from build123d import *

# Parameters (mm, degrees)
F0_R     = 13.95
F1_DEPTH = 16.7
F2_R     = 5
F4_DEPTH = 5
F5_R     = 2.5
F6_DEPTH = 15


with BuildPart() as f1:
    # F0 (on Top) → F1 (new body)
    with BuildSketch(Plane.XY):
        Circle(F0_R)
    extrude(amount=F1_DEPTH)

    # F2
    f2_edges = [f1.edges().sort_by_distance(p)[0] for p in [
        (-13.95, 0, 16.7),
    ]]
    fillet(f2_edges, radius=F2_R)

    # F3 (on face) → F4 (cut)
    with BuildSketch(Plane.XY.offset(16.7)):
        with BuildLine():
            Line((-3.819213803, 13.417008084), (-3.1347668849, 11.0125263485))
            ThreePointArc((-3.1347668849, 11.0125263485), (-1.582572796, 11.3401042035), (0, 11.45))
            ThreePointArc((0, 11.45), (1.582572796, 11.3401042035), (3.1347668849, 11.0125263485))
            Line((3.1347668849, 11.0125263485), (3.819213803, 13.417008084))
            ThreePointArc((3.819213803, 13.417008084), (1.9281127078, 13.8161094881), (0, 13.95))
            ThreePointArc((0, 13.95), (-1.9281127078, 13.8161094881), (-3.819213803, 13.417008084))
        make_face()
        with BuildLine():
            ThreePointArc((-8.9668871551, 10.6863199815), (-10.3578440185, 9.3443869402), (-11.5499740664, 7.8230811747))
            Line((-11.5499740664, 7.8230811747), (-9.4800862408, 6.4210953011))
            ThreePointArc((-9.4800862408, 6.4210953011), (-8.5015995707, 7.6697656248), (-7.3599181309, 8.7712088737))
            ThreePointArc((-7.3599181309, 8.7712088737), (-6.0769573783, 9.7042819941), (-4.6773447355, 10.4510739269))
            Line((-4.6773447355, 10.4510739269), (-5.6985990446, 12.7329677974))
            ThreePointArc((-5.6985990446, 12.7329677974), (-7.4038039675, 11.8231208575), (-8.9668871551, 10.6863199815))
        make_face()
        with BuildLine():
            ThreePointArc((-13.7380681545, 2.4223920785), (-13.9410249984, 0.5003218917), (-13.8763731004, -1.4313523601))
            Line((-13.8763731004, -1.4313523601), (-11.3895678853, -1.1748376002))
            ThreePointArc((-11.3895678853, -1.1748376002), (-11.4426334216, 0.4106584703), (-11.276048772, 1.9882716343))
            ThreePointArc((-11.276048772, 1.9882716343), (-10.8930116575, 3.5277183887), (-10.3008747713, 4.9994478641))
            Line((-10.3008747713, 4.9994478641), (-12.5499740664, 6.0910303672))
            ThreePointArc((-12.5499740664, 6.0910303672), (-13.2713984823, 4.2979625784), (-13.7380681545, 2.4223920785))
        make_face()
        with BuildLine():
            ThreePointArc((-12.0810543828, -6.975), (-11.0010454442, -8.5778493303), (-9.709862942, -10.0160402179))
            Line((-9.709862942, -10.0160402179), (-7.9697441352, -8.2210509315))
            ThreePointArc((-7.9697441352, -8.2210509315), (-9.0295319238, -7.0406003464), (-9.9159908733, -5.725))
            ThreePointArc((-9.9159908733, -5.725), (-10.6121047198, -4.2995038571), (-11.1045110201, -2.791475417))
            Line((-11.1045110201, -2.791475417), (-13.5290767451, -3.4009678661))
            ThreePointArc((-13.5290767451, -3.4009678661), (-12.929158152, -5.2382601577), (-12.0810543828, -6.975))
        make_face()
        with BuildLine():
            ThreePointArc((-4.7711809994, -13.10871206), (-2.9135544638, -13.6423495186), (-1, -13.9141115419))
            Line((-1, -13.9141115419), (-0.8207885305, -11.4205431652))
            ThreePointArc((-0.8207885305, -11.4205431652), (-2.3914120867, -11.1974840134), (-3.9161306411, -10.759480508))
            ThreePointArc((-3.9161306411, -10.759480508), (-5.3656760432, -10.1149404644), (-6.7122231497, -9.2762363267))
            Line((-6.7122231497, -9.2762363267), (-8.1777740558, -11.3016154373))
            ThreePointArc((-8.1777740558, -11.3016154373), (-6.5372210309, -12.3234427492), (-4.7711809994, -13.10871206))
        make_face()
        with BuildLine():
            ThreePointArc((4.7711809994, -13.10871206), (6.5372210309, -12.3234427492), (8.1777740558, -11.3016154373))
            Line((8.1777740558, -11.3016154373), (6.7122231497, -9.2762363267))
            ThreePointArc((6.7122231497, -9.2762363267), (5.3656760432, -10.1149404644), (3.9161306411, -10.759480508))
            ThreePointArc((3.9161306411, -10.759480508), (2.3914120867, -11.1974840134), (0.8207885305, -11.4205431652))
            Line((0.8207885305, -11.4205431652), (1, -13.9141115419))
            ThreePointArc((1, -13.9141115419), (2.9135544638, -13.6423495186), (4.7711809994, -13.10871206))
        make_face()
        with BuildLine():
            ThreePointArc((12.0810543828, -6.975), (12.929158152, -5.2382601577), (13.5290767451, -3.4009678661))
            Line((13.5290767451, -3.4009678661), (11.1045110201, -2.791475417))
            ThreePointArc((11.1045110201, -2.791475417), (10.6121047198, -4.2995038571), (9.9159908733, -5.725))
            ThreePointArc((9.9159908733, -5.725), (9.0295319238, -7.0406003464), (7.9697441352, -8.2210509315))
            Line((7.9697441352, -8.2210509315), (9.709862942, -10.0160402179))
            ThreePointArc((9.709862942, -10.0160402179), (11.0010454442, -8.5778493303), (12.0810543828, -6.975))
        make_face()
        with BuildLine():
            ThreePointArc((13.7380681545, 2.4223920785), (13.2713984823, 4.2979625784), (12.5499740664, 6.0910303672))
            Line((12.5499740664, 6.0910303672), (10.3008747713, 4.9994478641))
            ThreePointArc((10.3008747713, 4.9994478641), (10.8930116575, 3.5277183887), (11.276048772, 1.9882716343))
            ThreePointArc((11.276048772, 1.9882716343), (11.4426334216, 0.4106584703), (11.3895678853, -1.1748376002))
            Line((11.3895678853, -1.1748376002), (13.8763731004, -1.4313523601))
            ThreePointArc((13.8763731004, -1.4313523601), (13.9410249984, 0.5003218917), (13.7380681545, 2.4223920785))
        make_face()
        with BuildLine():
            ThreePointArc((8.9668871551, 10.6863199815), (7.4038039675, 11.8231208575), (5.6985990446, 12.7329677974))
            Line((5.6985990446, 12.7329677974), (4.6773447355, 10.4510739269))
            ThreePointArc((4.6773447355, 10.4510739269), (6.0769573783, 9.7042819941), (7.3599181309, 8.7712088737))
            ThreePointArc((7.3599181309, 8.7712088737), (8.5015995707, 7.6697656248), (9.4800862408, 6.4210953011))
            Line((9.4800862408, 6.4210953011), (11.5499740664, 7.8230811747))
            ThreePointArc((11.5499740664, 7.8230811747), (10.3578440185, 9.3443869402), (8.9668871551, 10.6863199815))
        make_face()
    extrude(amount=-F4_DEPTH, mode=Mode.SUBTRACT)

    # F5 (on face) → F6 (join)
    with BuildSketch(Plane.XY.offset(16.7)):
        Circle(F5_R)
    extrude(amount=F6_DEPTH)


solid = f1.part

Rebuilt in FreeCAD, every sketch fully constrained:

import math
import FreeCAD as App
import Part
import Sketcher
from FreeCAD import Vector
Q = App.Units.Quantity


def edges_at(feature, points):
    """Names of the edges that pass closest to the given points."""
    edges = feature.Shape.Edges
    near = lambda p: min(range(len(edges)), key=lambda i: edges[i].distToShape(Part.Vertex(*p))[0])
    return sorted({f"Edge{near(p) + 1}" for p in points})

doc = App.newDocument("Part")
body = doc.addObject("PartDesign::Body", "Body")

sketch1 = body.newObject("Sketcher::SketchObject", "Sketch")
sketch1.AttachmentSupport = (doc.getObject("XY_Plane"), [""])
sketch1.MapMode = "FlatFace"
sketch1.addGeometry(Part.Circle(Vector(0, 0, 0), Vector(0, 0, 1), 14), False)
sketch1.addConstraint(Sketcher.Constraint("Coincident", 0, 3, -1, 1))
sketch1.addConstraint(Sketcher.Constraint("Diameter", 0, Q("27.9 mm")))
pad1 = body.newObject("PartDesign::Pad", "Pad")
pad1.Profile = sketch1
pad1.Length = 16.7
doc.recompute()

fillet = body.newObject("PartDesign::Fillet", "Fillet")
fillet.Base = (pad1, edges_at(pad1, [(-13.95, 0, 16.7)]))
fillet.Radius = 5

sketch2 = body.newObject("Sketcher::SketchObject", "Sketch001")
sketch2.AttachmentSupport = (doc.getObject("XY_Plane"), [""])
sketch2.MapMode = "FlatFace"
sketch2.AttachmentOffset = App.Placement(Vector(0, 0, 16.7), App.Rotation())
sketch2.addGeometry(Part.LineSegment(Vector(-3.8, 13.4, 0), Vector(-3.1, 11, 0)), False)
sketch2.addGeometry(Part.ArcOfCircle(Part.Circle(Vector(0, 0, 0), Vector(0, 0, 1), 11.4), math.radians(90), math.radians(105.89)), False)
sketch2.addGeometry(Part.ArcOfCircle(Part.Circle(Vector(0, 0, 0), Vector(0, 0, 1), 11.4), math.radians(74.11), math.radians(90)), False)
sketch2.addGeometry(Part.LineSegment(Vector(3.1, 11, 0), Vector(3.8, 13.4, 0)), False)
sketch2.addGeometry(Part.ArcOfCircle(Part.Circle(Vector(0, 0, 0), Vector(0, 0, 1), 13.9), math.radians(74.11), math.radians(90)), False)
sketch2.addGeometry(Part.ArcOfCircle(Part.Circle(Vector(0, 0, 0), Vector(0, 0, 1), 13.9), math.radians(90), math.radians(105.89)), False)
sketch2.addGeometry(Part.ArcOfCircle(Part.Circle(Vector(0, 0, 0), Vector(0, 0, 1), 13.9), math.radians(130), math.radians(145.89)), False)
sketch2.addGeometry(Part.LineSegment(Vector(-11.5, 7.8, 0), Vector(-9.5, 6.4, 0)), False)
sketch2.addGeometry(Part.ArcOfCircle(Part.Circle(Vector(0, 0, 0), Vector(0, 0, 1), 11.4), math.radians(130), math.radians(145.89)), False)
sketch2.addGeometry(Part.ArcOfCircle(Part.Circle(Vector(0, 0, 0), Vector(0, 0, 1), 11.5), math.radians(114.11), math.radians(130)), False)
sketch2.addGeometry(Part.LineSegment(Vector(-4.7, 10.5, 0), Vector(-5.7, 12.7, 0)), False)
sketch2.addGeometry(Part.ArcOfCircle(Part.Circle(Vector(0, 0, 0), Vector(0, 0, 1), 13.9), math.radians(114.11), math.radians(130)), False)
sketch2.addGeometry(Part.ArcOfCircle(Part.Circle(Vector(0, 0, 0), Vector(0, 0, 1), 13.9), math.radians(170), math.radians(185.89)), False)
sketch2.addGeometry(Part.LineSegment(Vector(-13.9, -1.4, 0), Vector(-11.4, -1.2, 0)), False)
sketch2.addGeometry(Part.ArcOfCircle(Part.Circle(Vector(0, 0, 0), Vector(0, 0, 1), 11.5), math.radians(170), math.radians(185.89)), False)
sketch2.addGeometry(Part.ArcOfCircle(Part.Circle(Vector(0, 0, 0), Vector(0, 0, 1), 11.4), math.radians(154.11), math.radians(170)), False)
sketch2.addGeometry(Part.LineSegment(Vector(-10.3, 5, 0), Vector(-12.5, 6.1, 0)), False)
sketch2.addGeometry(Part.ArcOfCircle(Part.Circle(Vector(0, 0, 0), Vector(0, 0, 1), 13.9), math.radians(154.11), math.radians(170)), False)
sketch2.addGeometry(Part.ArcOfCircle(Part.Circle(Vector(0, 0, 0), Vector(0, 0, 1), 14), math.radians(-150), math.radians(-134.11)), False)
sketch2.addGeometry(Part.LineSegment(Vector(-9.7, -10, 0), Vector(-8, -8.2, 0)), False)
sketch2.addGeometry(Part.ArcOfCircle(Part.Circle(Vector(0, 0, 0), Vector(0, 0, 1), 11.4), math.radians(-150), math.radians(-134.11)), False)
sketch2.addGeometry(Part.ArcOfCircle(Part.Circle(Vector(0, 0, 0), Vector(0, 0, 1), 11.4), math.radians(-165.89), math.radians(-150)), False)
sketch2.addGeometry(Part.LineSegment(Vector(-11.1, -2.8, 0), Vector(-13.5, -3.4, 0)), False)
sketch2.addGeometry(Part.ArcOfCircle(Part.Circle(Vector(0, 0, 0), Vector(0, 0, 1), 14), math.radians(-165.89), math.radians(-150)), False)
sketch2.addGeometry(Part.ArcOfCircle(Part.Circle(Vector(0, 0, 0), Vector(0, 0, 1), 13.9), math.radians(-110), math.radians(-94.11)), False)
sketch2.addGeometry(Part.LineSegment(Vector(-1, -13.9, 0), Vector(-0.8, -11.4, 0)), False)
sketch2.addGeometry(Part.ArcOfCircle(Part.Circle(Vector(0, 0, 0), Vector(0, 0, 1), 11.5), math.radians(-110), math.radians(-94.11)), False)
sketch2.addGeometry(Part.ArcOfCircle(Part.Circle(Vector(0, 0, 0), Vector(0, 0, 1), 11.5), math.radians(-125.89), math.radians(-110)), False)
sketch2.addGeometry(Part.LineSegment(Vector(-6.7, -9.3, 0), Vector(-8.2, -11.3, 0)), False)
sketch2.addGeometry(Part.ArcOfCircle(Part.Circle(Vector(0, 0, 0), Vector(0, 0, 1), 14), math.radians(-125.89), math.radians(-110)), False)
sketch2.addGeometry(Part.ArcOfCircle(Part.Circle(Vector(0, 0, 0), Vector(0, 0, 1), 14), math.radians(-70), math.radians(-54.11)), False)
sketch2.addGeometry(Part.LineSegment(Vector(8.2, -11.3, 0), Vector(6.7, -9.3, 0)), False)
sketch2.addGeometry(Part.ArcOfCircle(Part.Circle(Vector(0, 0, 0), Vector(0, 0, 1), 11.5), math.radians(-70), math.radians(-54.11)), False)
sketch2.addGeometry(Part.ArcOfCircle(Part.Circle(Vector(0, 0, 0), Vector(0, 0, 1), 11.5), math.radians(-85.89), math.radians(-70)), False)
sketch2.addGeometry(Part.LineSegment(Vector(0.8, -11.4, 0), Vector(1, -13.9, 0)), False)
sketch2.addGeometry(Part.ArcOfCircle(Part.Circle(Vector(0, 0, 0), Vector(0, 0, 1), 13.9), math.radians(-85.89), math.radians(-70)), False)
sketch2.addGeometry(Part.ArcOfCircle(Part.Circle(Vector(0, 0, 0), Vector(0, 0, 1), 14), math.radians(-30), math.radians(-14.11)), False)
sketch2.addGeometry(Part.LineSegment(Vector(13.5, -3.4, 0), Vector(11.1, -2.8, 0)), False)
sketch2.addGeometry(Part.ArcOfCircle(Part.Circle(Vector(0, 0, 0), Vector(0, 0, 1), 11.4), math.radians(-30), math.radians(-14.11)), False)
sketch2.addGeometry(Part.ArcOfCircle(Part.Circle(Vector(0, 0, 0), Vector(0, 0, 1), 11.4), math.radians(-45.89), math.radians(-30)), False)
sketch2.addGeometry(Part.LineSegment(Vector(8, -8.2, 0), Vector(9.7, -10, 0)), False)
sketch2.addGeometry(Part.ArcOfCircle(Part.Circle(Vector(0, 0, 0), Vector(0, 0, 1), 14), math.radians(-45.89), math.radians(-30)), False)
sketch2.addGeometry(Part.ArcOfCircle(Part.Circle(Vector(0, 0, 0), Vector(0, 0, 1), 13.9), math.radians(10), math.radians(25.89)), False)
sketch2.addGeometry(Part.LineSegment(Vector(12.5, 6.1, 0), Vector(10.3, 5, 0)), False)
sketch2.addGeometry(Part.ArcOfCircle(Part.Circle(Vector(0, 0, 0), Vector(0, 0, 1), 11.4), math.radians(10), math.radians(25.89)), False)
sketch2.addGeometry(Part.ArcOfCircle(Part.Circle(Vector(0, 0, 0), Vector(0, 0, 1), 11.5), math.radians(-5.89), math.radians(10)), False)
sketch2.addGeometry(Part.LineSegment(Vector(11.4, -1.2, 0), Vector(13.9, -1.4, 0)), False)
sketch2.addGeometry(Part.ArcOfCircle(Part.Circle(Vector(0, 0, 0), Vector(0, 0, 1), 13.9), math.radians(-5.89), math.radians(10)), False)
sketch2.addGeometry(Part.ArcOfCircle(Part.Circle(Vector(0, 0, 0), Vector(0, 0, 1), 13.9), math.radians(50), math.radians(65.89)), False)
sketch2.addGeometry(Part.LineSegment(Vector(5.7, 12.7, 0), Vector(4.7, 10.5, 0)), False)
sketch2.addGeometry(Part.ArcOfCircle(Part.Circle(Vector(0, 0, 0), Vector(0, 0, 1), 11.5), math.radians(50), math.radians(65.89)), False)
sketch2.addGeometry(Part.ArcOfCircle(Part.Circle(Vector(0, 0, 0), Vector(0, 0, 1), 11.4), math.radians(34.11), math.radians(50)), False)
sketch2.addGeometry(Part.LineSegment(Vector(9.5, 6.4, 0), Vector(11.5, 7.8, 0)), False)
sketch2.addGeometry(Part.ArcOfCircle(Part.Circle(Vector(0, 0, 0), Vector(0, 0, 1), 13.9), math.radians(34.11), math.radians(50)), False)
sketch2.addConstraint(Sketcher.Constraint("Coincident", 0, 2, 1, 2))
sketch2.addConstraint(Sketcher.Constraint("Tangent", 1, 1, 2, 2))
sketch2.addConstraint(Sketcher.Constraint("Coincident", 2, 1, 3, 1))
sketch2.addConstraint(Sketcher.Constraint("Coincident", 3, 2, 4, 1))
sketch2.addConstraint(Sketcher.Constraint("Tangent", 4, 2, 5, 1))
sketch2.addConstraint(Sketcher.Constraint("Coincident", 5, 2, 0, 1))
sketch2.addConstraint(Sketcher.Constraint("Coincident", 6, 2, 7, 1))
sketch2.addConstraint(Sketcher.Constraint("Coincident", 7, 2, 8, 2))
sketch2.addConstraint(Sketcher.Constraint("Tangent", 8, 1, 9, 2))
sketch2.addConstraint(Sketcher.Constraint("Coincident", 9, 1, 10, 1))
sketch2.addConstraint(Sketcher.Constraint("Coincident", 10, 2, 11, 1))
sketch2.addConstraint(Sketcher.Constraint("Tangent", 11, 2, 6, 1))
sketch2.addConstraint(Sketcher.Constraint("Coincident", 12, 2, 13, 1))
sketch2.addConstraint(Sketcher.Constraint("Coincident", 13, 2, 14, 2))
sketch2.addConstraint(Sketcher.Constraint("Tangent", 14, 1, 15, 2))
sketch2.addConstraint(Sketcher.Constraint("Coincident", 15, 1, 16, 1))
sketch2.addConstraint(Sketcher.Constraint("Coincident", 16, 2, 17, 1))
sketch2.addConstraint(Sketcher.Constraint("Tangent", 17, 2, 12, 1))
sketch2.addConstraint(Sketcher.Constraint("Coincident", 18, 2, 19, 1))
sketch2.addConstraint(Sketcher.Constraint("Coincident", 19, 2, 20, 2))
sketch2.addConstraint(Sketcher.Constraint("Tangent", 20, 1, 21, 2))
sketch2.addConstraint(Sketcher.Constraint("Coincident", 21, 1, 22, 1))
sketch2.addConstraint(Sketcher.Constraint("Coincident", 22, 2, 23, 1))
sketch2.addConstraint(Sketcher.Constraint("Tangent", 23, 2, 18, 1))
sketch2.addConstraint(Sketcher.Constraint("Coincident", 24, 2, 25, 1))
sketch2.addConstraint(Sketcher.Constraint("Coincident", 25, 2, 26, 2))
sketch2.addConstraint(Sketcher.Constraint("Tangent", 26, 1, 27, 2))
sketch2.addConstraint(Sketcher.Constraint("Coincident", 27, 1, 28, 1))
sketch2.addConstraint(Sketcher.Constraint("Coincident", 28, 2, 29, 1))
sketch2.addConstraint(Sketcher.Constraint("Tangent", 29, 2, 24, 1))
sketch2.addConstraint(Sketcher.Constraint("Coincident", 30, 2, 31, 1))
sketch2.addConstraint(Sketcher.Constraint("Coincident", 31, 2, 32, 2))
sketch2.addConstraint(Sketcher.Constraint("Tangent", 32, 1, 33, 2))
sketch2.addConstraint(Sketcher.Constraint("Coincident", 33, 1, 34, 1))
sketch2.addConstraint(Sketcher.Constraint("Coincident", 34, 2, 35, 1))
sketch2.addConstraint(Sketcher.Constraint("Tangent", 35, 2, 30, 1))
sketch2.addConstraint(Sketcher.Constraint("Coincident", 36, 2, 37, 1))
sketch2.addConstraint(Sketcher.Constraint("Coincident", 37, 2, 38, 2))
sketch2.addConstraint(Sketcher.Constraint("Tangent", 38, 1, 39, 2))
sketch2.addConstraint(Sketcher.Constraint("Coincident", 39, 1, 40, 1))
sketch2.addConstraint(Sketcher.Constraint("Coincident", 40, 2, 41, 1))
sketch2.addConstraint(Sketcher.Constraint("Tangent", 41, 2, 36, 1))
sketch2.addConstraint(Sketcher.Constraint("Coincident", 42, 2, 43, 1))
sketch2.addConstraint(Sketcher.Constraint("Coincident", 43, 2, 44, 2))
sketch2.addConstraint(Sketcher.Constraint("Tangent", 44, 1, 45, 2))
sketch2.addConstraint(Sketcher.Constraint("Coincident", 45, 1, 46, 1))
sketch2.addConstraint(Sketcher.Constraint("Coincident", 46, 2, 47, 1))
sketch2.addConstraint(Sketcher.Constraint("Tangent", 47, 2, 42, 1))
sketch2.addConstraint(Sketcher.Constraint("Coincident", 48, 2, 49, 1))
sketch2.addConstraint(Sketcher.Constraint("Coincident", 49, 2, 50, 2))
sketch2.addConstraint(Sketcher.Constraint("Tangent", 50, 1, 51, 2))
sketch2.addConstraint(Sketcher.Constraint("Coincident", 51, 1, 52, 1))
sketch2.addConstraint(Sketcher.Constraint("Coincident", 52, 2, 53, 1))
sketch2.addConstraint(Sketcher.Constraint("Tangent", 53, 2, 48, 1))
sketch2.addConstraint(Sketcher.Constraint("Coincident", 1, 3, -1, 1))
sketch2.addConstraint(Sketcher.Constraint("Coincident", 4, 3, -1, 1))
sketch2.addConstraint(Sketcher.Constraint("Coincident", 6, 3, -1, 1))
sketch2.addConstraint(Sketcher.Constraint("Coincident", 8, 3, -1, 1))
sketch2.addConstraint(Sketcher.Constraint("Coincident", 12, 3, -1, 1))
sketch2.addConstraint(Sketcher.Constraint("Coincident", 14, 3, -1, 1))
sketch2.addConstraint(Sketcher.Constraint("Coincident", 18, 3, -1, 1))
sketch2.addConstraint(Sketcher.Constraint("Coincident", 20, 3, -1, 1))
sketch2.addConstraint(Sketcher.Constraint("Coincident", 24, 3, -1, 1))
sketch2.addConstraint(Sketcher.Constraint("Coincident", 26, 3, -1, 1))
sketch2.addConstraint(Sketcher.Constraint("Coincident", 30, 3, -1, 1))
sketch2.addConstraint(Sketcher.Constraint("Coincident", 32, 3, -1, 1))
sketch2.addConstraint(Sketcher.Constraint("Coincident", 36, 3, -1, 1))
sketch2.addConstraint(Sketcher.Constraint("Coincident", 38, 3, -1, 1))
sketch2.addConstraint(Sketcher.Constraint("Coincident", 42, 3, -1, 1))
sketch2.addConstraint(Sketcher.Constraint("Coincident", 44, 3, -1, 1))
sketch2.addConstraint(Sketcher.Constraint("Coincident", 48, 3, -1, 1))
sketch2.addConstraint(Sketcher.Constraint("Coincident", 50, 3, -1, 1))
sketch2.addConstraint(Sketcher.Constraint("Equal", 1, 2))
sketch2.addConstraint(Sketcher.Constraint("Equal", 4, 5))
sketch2.addConstraint(Sketcher.Constraint("Equal", 5, 6))
sketch2.addConstraint(Sketcher.Constraint("Equal", 2, 8))
sketch2.addConstraint(Sketcher.Constraint("Equal", 8, 9))
sketch2.addConstraint(Sketcher.Constraint("Equal", 6, 11))
sketch2.addConstraint(Sketcher.Constraint("Equal", 11, 12))
sketch2.addConstraint(Sketcher.Constraint("Equal", 9, 14))
sketch2.addConstraint(Sketcher.Constraint("Equal", 14, 15))
sketch2.addConstraint(Sketcher.Constraint("Equal", 12, 17))
sketch2.addConstraint(Sketcher.Constraint("Equal", 17, 18))
sketch2.addConstraint(Sketcher.Constraint("Equal", 15, 20))
sketch2.addConstraint(Sketcher.Constraint("Equal", 20, 21))
sketch2.addConstraint(Sketcher.Constraint("Equal", 18, 23))
sketch2.addConstraint(Sketcher.Constraint("Equal", 23, 24))
sketch2.addConstraint(Sketcher.Constraint("Equal", 21, 26))
sketch2.addConstraint(Sketcher.Constraint("Equal", 26, 27))
sketch2.addConstraint(Sketcher.Constraint("Equal", 24, 29))
sketch2.addConstraint(Sketcher.Constraint("Equal", 29, 30))
sketch2.addConstraint(Sketcher.Constraint("Equal", 27, 32))
sketch2.addConstraint(Sketcher.Constraint("Equal", 32, 33))
sketch2.addConstraint(Sketcher.Constraint("Equal", 30, 35))
sketch2.addConstraint(Sketcher.Constraint("Equal", 35, 36))
sketch2.addConstraint(Sketcher.Constraint("Equal", 33, 38))
sketch2.addConstraint(Sketcher.Constraint("Equal", 38, 39))
sketch2.addConstraint(Sketcher.Constraint("Equal", 36, 41))
sketch2.addConstraint(Sketcher.Constraint("Equal", 41, 42))
sketch2.addConstraint(Sketcher.Constraint("Equal", 39, 44))
sketch2.addConstraint(Sketcher.Constraint("Equal", 44, 45))
sketch2.addConstraint(Sketcher.Constraint("Equal", 42, 47))
sketch2.addConstraint(Sketcher.Constraint("Equal", 47, 48))
sketch2.addConstraint(Sketcher.Constraint("Equal", 45, 50))
sketch2.addConstraint(Sketcher.Constraint("Equal", 50, 51))
sketch2.addConstraint(Sketcher.Constraint("Equal", 48, 53))
sketch2.addConstraint(Sketcher.Constraint("PointOnObject", 1, 1, -2))
sketch2.addConstraint(Sketcher.Constraint("PointOnObject", 4, 2, -2))
sketch2.addConstraint(Sketcher.Constraint("Horizontal", 0, 2, 2, 1))
sketch2.addConstraint(Sketcher.Constraint("Horizontal", 3, 2, 5, 2))
sketch2.addConstraint(Sketcher.Constraint("Horizontal", 28, 2, 30, 2))
sketch2.addConstraint(Sketcher.Constraint("Horizontal", 27, 1, 31, 2))
sketch2.addConstraint(Sketcher.Constraint("Horizontal", 26, 1, 32, 1))
sketch2.addConstraint(Sketcher.Constraint("Horizontal", 25, 2, 33, 1))
sketch2.addConstraint(Sketcher.Constraint("Horizontal", 24, 2, 34, 2))
sketch2.addConstraint(Sketcher.Constraint("Horizontal", 29, 2, 35, 2))
sketch2.addConstraint(Sketcher.Constraint("Horizontal", 22, 2, 36, 2))
sketch2.addConstraint(Sketcher.Constraint("Horizontal", 21, 1, 37, 2))
sketch2.addConstraint(Sketcher.Constraint("Horizontal", 20, 1, 38, 1))
sketch2.addConstraint(Sketcher.Constraint("Horizontal", 19, 2, 39, 1))
sketch2.addConstraint(Sketcher.Constraint("Horizontal", 18, 2, 40, 2))
sketch2.addConstraint(Sketcher.Constraint("Horizontal", 23, 2, 41, 2))
sketch2.addConstraint(Sketcher.Constraint("Horizontal", 16, 2, 42, 2))
sketch2.addConstraint(Sketcher.Constraint("Horizontal", 15, 1, 43, 2))
sketch2.addConstraint(Sketcher.Constraint("Horizontal", 14, 1, 44, 1))
sketch2.addConstraint(Sketcher.Constraint("Horizontal", 13, 2, 45, 1))
sketch2.addConstraint(Sketcher.Constraint("Horizontal", 12, 2, 46, 2))
sketch2.addConstraint(Sketcher.Constraint("Horizontal", 17, 2, 47, 2))
sketch2.addConstraint(Sketcher.Constraint("Horizontal", 10, 2, 48, 2))
sketch2.addConstraint(Sketcher.Constraint("Horizontal", 9, 1, 49, 2))
sketch2.addConstraint(Sketcher.Constraint("Horizontal", 8, 1, 50, 1))
sketch2.addConstraint(Sketcher.Constraint("Horizontal", 7, 2, 51, 1))
sketch2.addConstraint(Sketcher.Constraint("Horizontal", 6, 2, 52, 2))
sketch2.addConstraint(Sketcher.Constraint("Horizontal", 11, 2, 53, 2))
sketch2.addConstraint(Sketcher.Constraint("Radius", 1, Q("11.45 mm")))
sketch2.addConstraint(Sketcher.Constraint("Radius", 4, Q("13.95 mm")))
sketch2.addConstraint(Sketcher.Constraint("DistanceX", 24, 2, -1, 1, Q("1 mm")))
sketch2.addConstraint(Sketcher.Constraint("DistanceY", 20, 1, -1, 1, Q("5.725 mm")))
sketch2.addConstraint(Sketcher.Constraint("DistanceY", 23, 2, -1, 1, Q("6.975 mm")))
sketch2.addConstraint(Sketcher.Constraint("DistanceX", 10, 2, -1, 1, Q("5.698599 mm")))
sketch2.addConstraint(Sketcher.Constraint("DistanceY", -1, 1, 3, 2, Q("13.417008 mm")))
sketch2.addConstraint(Sketcher.Constraint("DistanceY", -1, 1, 6, 2, Q("7.823081 mm")))
sketch2.addConstraint(Sketcher.Constraint("DistanceX", 8, 1, -1, 1, Q("7.359918 mm")))
sketch2.addConstraint(Sketcher.Constraint("DistanceY", -1, 1, 11, 2, Q("10.68632 mm")))
sketch2.addConstraint(Sketcher.Constraint("DistanceX", 14, 1, -1, 1, Q("11.276049 mm")))
sketch2.addConstraint(Sketcher.Constraint("DistanceY", -1, 1, 16, 2, Q("6.09103 mm")))
sketch2.addConstraint(Sketcher.Constraint("DistanceX", 17, 2, -1, 1, Q("13.738068 mm")))
sketch2.addConstraint(Sketcher.Constraint("DistanceY", 18, 2, -1, 1, Q("10.01604 mm")))
sketch2.addConstraint(Sketcher.Constraint("DistanceY", 19, 2, -1, 1, Q("8.221051 mm")))
sketch2.addConstraint(Sketcher.Constraint("DistanceX", 21, 1, -1, 1, Q("11.104511 mm")))
sketch2.addConstraint(Sketcher.Constraint("DistanceX", 25, 2, -1, 1, Q("0.820789 mm")))
sketch2.addConstraint(Sketcher.Constraint("DistanceX", 26, 1, -1, 1, Q("3.916131 mm")))
sketch2.addConstraint(Sketcher.Constraint("DistanceX", 29, 2, -1, 1, Q("4.771181 mm")))
sketch2.addConstraint(Sketcher.Constraint("DistanceX", 0, 2, -1, 1, Q("3.134767 mm")))
sketch2.addConstraint(Sketcher.Constraint("DistanceX", 7, 2, -1, 1, Q("9.480086 mm")))
sketch2.addConstraint(Sketcher.Constraint("DistanceX", 9, 1, -1, 1, Q("4.677345 mm")))
sketch2.addConstraint(Sketcher.Constraint("DistanceX", 12, 2, -1, 1, Q("13.876373 mm")))
sketch2.addConstraint(Sketcher.Constraint("DistanceX", 13, 2, -1, 1, Q("11.389568 mm")))
sketch2.addConstraint(Sketcher.Constraint("DistanceX", 15, 1, -1, 1, Q("10.300875 mm")))
sketch2.addConstraint(Sketcher.Constraint("DistanceX", 22, 2, -1, 1, Q("13.529077 mm")))
sketch2.addConstraint(Sketcher.Constraint("DistanceX", 27, 1, -1, 1, Q("6.712223 mm")))
sketch2.addConstraint(Sketcher.Constraint("DistanceX", 28, 2, -1, 1, Q("8.177774 mm")))
pocket1 = body.newObject("PartDesign::Pocket", "Pocket")
pocket1.Profile = sketch2
pocket1.Length = 5

sketch3 = body.newObject("Sketcher::SketchObject", "Sketch002")
sketch3.AttachmentSupport = (doc.getObject("XY_Plane"), [""])
sketch3.MapMode = "FlatFace"
sketch3.AttachmentOffset = App.Placement(Vector(0, 0, 16.7), App.Rotation())
sketch3.addGeometry(Part.Circle(Vector(0, 0, 0), Vector(0, 0, 1), 2.5), False)
sketch3.addConstraint(Sketcher.Constraint("Coincident", 0, 3, -1, 1))
sketch3.addConstraint(Sketcher.Constraint("Diameter", 0, Q("5 mm")))
pad2 = body.newObject("PartDesign::Pad", "Pad001")
pad2.Profile = sketch3
pad2.Length = 15

doc.recompute()
